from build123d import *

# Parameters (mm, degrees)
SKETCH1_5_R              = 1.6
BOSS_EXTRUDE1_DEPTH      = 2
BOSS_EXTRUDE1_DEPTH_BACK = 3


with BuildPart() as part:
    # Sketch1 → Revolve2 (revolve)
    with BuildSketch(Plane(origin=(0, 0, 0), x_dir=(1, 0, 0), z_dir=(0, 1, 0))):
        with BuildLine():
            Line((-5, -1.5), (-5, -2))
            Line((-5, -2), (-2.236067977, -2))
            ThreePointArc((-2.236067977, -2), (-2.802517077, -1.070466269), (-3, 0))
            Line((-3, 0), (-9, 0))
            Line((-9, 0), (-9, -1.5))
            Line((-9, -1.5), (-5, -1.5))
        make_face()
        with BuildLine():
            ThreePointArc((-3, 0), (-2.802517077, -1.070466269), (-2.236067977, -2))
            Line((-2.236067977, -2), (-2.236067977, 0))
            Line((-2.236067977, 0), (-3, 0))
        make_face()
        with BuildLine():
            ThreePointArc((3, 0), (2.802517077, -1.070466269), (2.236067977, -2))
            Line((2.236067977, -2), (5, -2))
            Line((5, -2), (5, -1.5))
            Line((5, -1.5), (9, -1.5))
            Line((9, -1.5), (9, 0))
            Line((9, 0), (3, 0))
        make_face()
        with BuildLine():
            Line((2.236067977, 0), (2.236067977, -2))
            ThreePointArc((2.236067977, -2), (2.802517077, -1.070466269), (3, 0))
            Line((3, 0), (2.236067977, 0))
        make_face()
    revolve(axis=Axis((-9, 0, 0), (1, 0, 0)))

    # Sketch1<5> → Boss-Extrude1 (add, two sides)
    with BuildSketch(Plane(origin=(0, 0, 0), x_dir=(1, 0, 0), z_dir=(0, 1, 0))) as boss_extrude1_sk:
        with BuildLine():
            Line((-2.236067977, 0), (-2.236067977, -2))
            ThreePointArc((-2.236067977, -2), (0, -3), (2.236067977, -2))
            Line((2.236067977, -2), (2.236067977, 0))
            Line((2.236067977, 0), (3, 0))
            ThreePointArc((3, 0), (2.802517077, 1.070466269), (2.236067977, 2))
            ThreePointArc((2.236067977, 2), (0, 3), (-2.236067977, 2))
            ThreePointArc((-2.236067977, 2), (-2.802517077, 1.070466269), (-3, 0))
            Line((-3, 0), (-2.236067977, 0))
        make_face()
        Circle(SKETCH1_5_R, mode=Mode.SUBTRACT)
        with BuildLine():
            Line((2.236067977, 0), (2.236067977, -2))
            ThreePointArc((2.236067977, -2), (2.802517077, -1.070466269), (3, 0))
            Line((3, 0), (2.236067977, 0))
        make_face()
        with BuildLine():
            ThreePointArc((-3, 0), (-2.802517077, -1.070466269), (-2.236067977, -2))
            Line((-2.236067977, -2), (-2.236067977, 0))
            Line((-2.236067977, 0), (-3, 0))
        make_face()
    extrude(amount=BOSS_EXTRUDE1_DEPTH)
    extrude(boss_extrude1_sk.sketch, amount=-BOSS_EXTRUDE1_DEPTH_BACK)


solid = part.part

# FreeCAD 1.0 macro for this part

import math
import FreeCAD as App
import Part
import Sketcher
Q = App.Units.Quantity


def add_polygon(sketch, points):
    """Adds a closed chain of lines whose ends are joined by coincident constraints."""
    first, n = sketch.GeometryCount, len(points)
    for a, b in zip(points, points[1:] + points[:1]):
        sketch.addGeometry(Part.LineSegment(App.Vector(*a, 0), App.Vector(*b, 0)), False)
    for i in range(n):
        sketch.addConstraint(Sketcher.Constraint("Coincident", first + i, 2, first + (i + 1) % n, 1))

doc = App.newDocument("Part")
body = doc.addObject("PartDesign::Body", "Body")
body.AllowCompound = True

# Sketch on XZ plane
sketch1 = body.newObject("Sketcher::SketchObject", "Sketch")
sketch1.AttachmentSupport = (doc.getObject("XZ_Plane"), [""])
sketch1.MapMode = "FlatFace"
add_polygon(sketch1, [(-5, 1.5), (-5, 2), (-2.2, 2), (-2.2, 0), (-9, 0), (-9, 1.5)])  # lines 0-5
add_polygon(sketch1, [(2.2, 2), (5, 2), (5, 1.5), (9, 1.5), (9, 0), (2.2, 0)])  # lines 6-11
sketch1.addConstraint(Sketcher.Constraint("Vertical", 0))
sketch1.addConstraint(Sketcher.Constraint("Horizontal", 1))
sketch1.addConstraint(Sketcher.Constraint("Vertical", 2))
sketch1.addConstraint(Sketcher.Constraint("Horizontal", 3))
sketch1.addConstraint(Sketcher.Constraint("Vertical", 4))
sketch1.addConstraint(Sketcher.Constraint("Horizontal", 5))
sketch1.addConstraint(Sketcher.Constraint("Horizontal", 6))
sketch1.addConstraint(Sketcher.Constraint("Vertical", 7))
sketch1.addConstraint(Sketcher.Constraint("Horizontal", 8))
sketch1.addConstraint(Sketcher.Constraint("Vertical", 9))
sketch1.addConstraint(Sketcher.Constraint("Horizontal", 10))
sketch1.addConstraint(Sketcher.Constraint("Vertical", 11))
sketch1.addConstraint(Sketcher.Constraint("Symmetric", 3, 2, 9, 2, -1, 1))
sketch1.addConstraint(Sketcher.Constraint("Symmetric", 0, 2, 6, 2, -2))
sketch1.addConstraint(Sketcher.Constraint("Symmetric", 2, 2, 10, 2, -2))
sketch1.addConstraint(Sketcher.Constraint("Horizontal", 5, 2, 7, 2))
sketch1.addConstraint(Sketcher.Constraint("DistanceX", 5, 1, 5, 2, Q("4 mm")))
sketch1.addConstraint(Sketcher.Constraint("DistanceY", 2, 2, 2, 1, Q("2 mm")))
sketch1.addConstraint(Sketcher.Constraint("DistanceY", 0, 1, 0, 2, Q("0.5 mm")))
sketch1.addConstraint(Sketcher.Constraint("DistanceX", 0, 2, -1, 1, Q("5 mm")))
sketch1.addConstraint(Sketcher.Constraint("DistanceX", 1, 1, 1, 2, Q("2.763932 mm")))
revolution = body.newObject("PartDesign::Revolution", "Revolution")
revolution.Profile = sketch1
revolution.ReferenceAxis = (sketch1, ["H_Axis"])
revolution.Angle = 360

# Sketch on XZ plane
sketch2 = body.newObject("Sketcher::SketchObject", "Sketch001")
sketch2.AttachmentSupport = (doc.getObject("XZ_Plane"), [""])
sketch2.MapMode = "FlatFace"
sketch2.addGeometry(Part.ArcOfCircle(Part.Circle(App.Vector(0, 0, 0), App.Vector(0, 0, 1), 3), math.radians(42), math.radians(138)), False)
sketch2.addGeometry(Part.ArcOfCircle(Part.Circle(App.Vector(0, 0, 0), App.Vector(0, 0, 1), 3), math.radians(0), math.radians(42)), False)
sketch2.addGeometry(Part.ArcOfCircle(Part.Circle(App.Vector(0, 0, 0), App.Vector(0, 0, 1), 3), math.radians(-42), math.radians(0)), False)
sketch2.addGeometry(Part.ArcOfCircle(Part.Circle(App.Vector(0, 0, 0), App.Vector(0, 0, 1), 3), math.radians(-138), math.radians(-42)), False)
sketch2.addGeometry(Part.ArcOfCircle(Part.Circle(App.Vector(0, 0, 0), App.Vector(0, 0, 1), 3), math.radians(180), math.radians(222)), False)
sketch2.addGeometry(Part.ArcOfCircle(Part.Circle(App.Vector(0, 0, 0), App.Vector(0, 0, 1), 3), math.radians(138), math.radians(180)), False)
sketch2.addGeometry(Part.Circle(App.Vector(0, 0, 0), App.Vector(0, 0, 1), 1.6), False)
sketch2.addConstraint(Sketcher.Constraint("Tangent", 0, 1, 1, 2))
sketch2.addConstraint(Sketcher.Constraint("Tangent", 1, 1, 2, 2))
sketch2.addConstraint(Sketcher.Constraint("Tangent", 2, 1, 3, 2))
sketch2.addConstraint(Sketcher.Constraint("Tangent", 3, 1, 4, 2))
sketch2.addConstraint(Sketcher.Constraint("Tangent", 4, 1, 5, 2))
sketch2.addConstraint(Sketcher.Constraint("Tangent", 5, 1, 0, 2))
sketch2.addConstraint(Sketcher.Constraint("Coincident", 0, 3, -1, 1))
sketch2.addConstraint(Sketcher.Constraint("Coincident", 2, 3, -1, 1))
sketch2.addConstraint(Sketcher.Constraint("Coincident", 6, 3, -1, 1))
sketch2.addConstraint(Sketcher.Constraint("Equal", 2, 3))
sketch2.addConstraint(Sketcher.Constraint("PointOnObject", 1, 1, -1))
sketch2.addConstraint(Sketcher.Constraint("PointOnObject", 4, 1, -1))
sketch2.addConstraint(Sketcher.Constraint("Horizontal", 2, 1, 3, 1))
sketch2.addConstraint(Sketcher.Constraint("Horizontal", 0, 1, 5, 1))
sketch2.addConstraint(Sketcher.Constraint("Vertical", 0, 1, 2, 1))
sketch2.addConstraint(Sketcher.Constraint("Radius", 0, Q("3 mm")))
sketch2.addConstraint(Sketcher.Constraint("Diameter", 6, Q("3.2 mm")))
sketch2.addConstraint(Sketcher.Constraint("DistanceY", -1, 1, 0, 1, Q("2 mm")))
pad1 = body.newObject("PartDesign::Pad", "Pad")
pad1.Profile = sketch2
pad1.Type = "TwoLengths"
pad1.Length = 2
pad1.Length2 = 3
pad1.Reversed = True

doc.recompute()
